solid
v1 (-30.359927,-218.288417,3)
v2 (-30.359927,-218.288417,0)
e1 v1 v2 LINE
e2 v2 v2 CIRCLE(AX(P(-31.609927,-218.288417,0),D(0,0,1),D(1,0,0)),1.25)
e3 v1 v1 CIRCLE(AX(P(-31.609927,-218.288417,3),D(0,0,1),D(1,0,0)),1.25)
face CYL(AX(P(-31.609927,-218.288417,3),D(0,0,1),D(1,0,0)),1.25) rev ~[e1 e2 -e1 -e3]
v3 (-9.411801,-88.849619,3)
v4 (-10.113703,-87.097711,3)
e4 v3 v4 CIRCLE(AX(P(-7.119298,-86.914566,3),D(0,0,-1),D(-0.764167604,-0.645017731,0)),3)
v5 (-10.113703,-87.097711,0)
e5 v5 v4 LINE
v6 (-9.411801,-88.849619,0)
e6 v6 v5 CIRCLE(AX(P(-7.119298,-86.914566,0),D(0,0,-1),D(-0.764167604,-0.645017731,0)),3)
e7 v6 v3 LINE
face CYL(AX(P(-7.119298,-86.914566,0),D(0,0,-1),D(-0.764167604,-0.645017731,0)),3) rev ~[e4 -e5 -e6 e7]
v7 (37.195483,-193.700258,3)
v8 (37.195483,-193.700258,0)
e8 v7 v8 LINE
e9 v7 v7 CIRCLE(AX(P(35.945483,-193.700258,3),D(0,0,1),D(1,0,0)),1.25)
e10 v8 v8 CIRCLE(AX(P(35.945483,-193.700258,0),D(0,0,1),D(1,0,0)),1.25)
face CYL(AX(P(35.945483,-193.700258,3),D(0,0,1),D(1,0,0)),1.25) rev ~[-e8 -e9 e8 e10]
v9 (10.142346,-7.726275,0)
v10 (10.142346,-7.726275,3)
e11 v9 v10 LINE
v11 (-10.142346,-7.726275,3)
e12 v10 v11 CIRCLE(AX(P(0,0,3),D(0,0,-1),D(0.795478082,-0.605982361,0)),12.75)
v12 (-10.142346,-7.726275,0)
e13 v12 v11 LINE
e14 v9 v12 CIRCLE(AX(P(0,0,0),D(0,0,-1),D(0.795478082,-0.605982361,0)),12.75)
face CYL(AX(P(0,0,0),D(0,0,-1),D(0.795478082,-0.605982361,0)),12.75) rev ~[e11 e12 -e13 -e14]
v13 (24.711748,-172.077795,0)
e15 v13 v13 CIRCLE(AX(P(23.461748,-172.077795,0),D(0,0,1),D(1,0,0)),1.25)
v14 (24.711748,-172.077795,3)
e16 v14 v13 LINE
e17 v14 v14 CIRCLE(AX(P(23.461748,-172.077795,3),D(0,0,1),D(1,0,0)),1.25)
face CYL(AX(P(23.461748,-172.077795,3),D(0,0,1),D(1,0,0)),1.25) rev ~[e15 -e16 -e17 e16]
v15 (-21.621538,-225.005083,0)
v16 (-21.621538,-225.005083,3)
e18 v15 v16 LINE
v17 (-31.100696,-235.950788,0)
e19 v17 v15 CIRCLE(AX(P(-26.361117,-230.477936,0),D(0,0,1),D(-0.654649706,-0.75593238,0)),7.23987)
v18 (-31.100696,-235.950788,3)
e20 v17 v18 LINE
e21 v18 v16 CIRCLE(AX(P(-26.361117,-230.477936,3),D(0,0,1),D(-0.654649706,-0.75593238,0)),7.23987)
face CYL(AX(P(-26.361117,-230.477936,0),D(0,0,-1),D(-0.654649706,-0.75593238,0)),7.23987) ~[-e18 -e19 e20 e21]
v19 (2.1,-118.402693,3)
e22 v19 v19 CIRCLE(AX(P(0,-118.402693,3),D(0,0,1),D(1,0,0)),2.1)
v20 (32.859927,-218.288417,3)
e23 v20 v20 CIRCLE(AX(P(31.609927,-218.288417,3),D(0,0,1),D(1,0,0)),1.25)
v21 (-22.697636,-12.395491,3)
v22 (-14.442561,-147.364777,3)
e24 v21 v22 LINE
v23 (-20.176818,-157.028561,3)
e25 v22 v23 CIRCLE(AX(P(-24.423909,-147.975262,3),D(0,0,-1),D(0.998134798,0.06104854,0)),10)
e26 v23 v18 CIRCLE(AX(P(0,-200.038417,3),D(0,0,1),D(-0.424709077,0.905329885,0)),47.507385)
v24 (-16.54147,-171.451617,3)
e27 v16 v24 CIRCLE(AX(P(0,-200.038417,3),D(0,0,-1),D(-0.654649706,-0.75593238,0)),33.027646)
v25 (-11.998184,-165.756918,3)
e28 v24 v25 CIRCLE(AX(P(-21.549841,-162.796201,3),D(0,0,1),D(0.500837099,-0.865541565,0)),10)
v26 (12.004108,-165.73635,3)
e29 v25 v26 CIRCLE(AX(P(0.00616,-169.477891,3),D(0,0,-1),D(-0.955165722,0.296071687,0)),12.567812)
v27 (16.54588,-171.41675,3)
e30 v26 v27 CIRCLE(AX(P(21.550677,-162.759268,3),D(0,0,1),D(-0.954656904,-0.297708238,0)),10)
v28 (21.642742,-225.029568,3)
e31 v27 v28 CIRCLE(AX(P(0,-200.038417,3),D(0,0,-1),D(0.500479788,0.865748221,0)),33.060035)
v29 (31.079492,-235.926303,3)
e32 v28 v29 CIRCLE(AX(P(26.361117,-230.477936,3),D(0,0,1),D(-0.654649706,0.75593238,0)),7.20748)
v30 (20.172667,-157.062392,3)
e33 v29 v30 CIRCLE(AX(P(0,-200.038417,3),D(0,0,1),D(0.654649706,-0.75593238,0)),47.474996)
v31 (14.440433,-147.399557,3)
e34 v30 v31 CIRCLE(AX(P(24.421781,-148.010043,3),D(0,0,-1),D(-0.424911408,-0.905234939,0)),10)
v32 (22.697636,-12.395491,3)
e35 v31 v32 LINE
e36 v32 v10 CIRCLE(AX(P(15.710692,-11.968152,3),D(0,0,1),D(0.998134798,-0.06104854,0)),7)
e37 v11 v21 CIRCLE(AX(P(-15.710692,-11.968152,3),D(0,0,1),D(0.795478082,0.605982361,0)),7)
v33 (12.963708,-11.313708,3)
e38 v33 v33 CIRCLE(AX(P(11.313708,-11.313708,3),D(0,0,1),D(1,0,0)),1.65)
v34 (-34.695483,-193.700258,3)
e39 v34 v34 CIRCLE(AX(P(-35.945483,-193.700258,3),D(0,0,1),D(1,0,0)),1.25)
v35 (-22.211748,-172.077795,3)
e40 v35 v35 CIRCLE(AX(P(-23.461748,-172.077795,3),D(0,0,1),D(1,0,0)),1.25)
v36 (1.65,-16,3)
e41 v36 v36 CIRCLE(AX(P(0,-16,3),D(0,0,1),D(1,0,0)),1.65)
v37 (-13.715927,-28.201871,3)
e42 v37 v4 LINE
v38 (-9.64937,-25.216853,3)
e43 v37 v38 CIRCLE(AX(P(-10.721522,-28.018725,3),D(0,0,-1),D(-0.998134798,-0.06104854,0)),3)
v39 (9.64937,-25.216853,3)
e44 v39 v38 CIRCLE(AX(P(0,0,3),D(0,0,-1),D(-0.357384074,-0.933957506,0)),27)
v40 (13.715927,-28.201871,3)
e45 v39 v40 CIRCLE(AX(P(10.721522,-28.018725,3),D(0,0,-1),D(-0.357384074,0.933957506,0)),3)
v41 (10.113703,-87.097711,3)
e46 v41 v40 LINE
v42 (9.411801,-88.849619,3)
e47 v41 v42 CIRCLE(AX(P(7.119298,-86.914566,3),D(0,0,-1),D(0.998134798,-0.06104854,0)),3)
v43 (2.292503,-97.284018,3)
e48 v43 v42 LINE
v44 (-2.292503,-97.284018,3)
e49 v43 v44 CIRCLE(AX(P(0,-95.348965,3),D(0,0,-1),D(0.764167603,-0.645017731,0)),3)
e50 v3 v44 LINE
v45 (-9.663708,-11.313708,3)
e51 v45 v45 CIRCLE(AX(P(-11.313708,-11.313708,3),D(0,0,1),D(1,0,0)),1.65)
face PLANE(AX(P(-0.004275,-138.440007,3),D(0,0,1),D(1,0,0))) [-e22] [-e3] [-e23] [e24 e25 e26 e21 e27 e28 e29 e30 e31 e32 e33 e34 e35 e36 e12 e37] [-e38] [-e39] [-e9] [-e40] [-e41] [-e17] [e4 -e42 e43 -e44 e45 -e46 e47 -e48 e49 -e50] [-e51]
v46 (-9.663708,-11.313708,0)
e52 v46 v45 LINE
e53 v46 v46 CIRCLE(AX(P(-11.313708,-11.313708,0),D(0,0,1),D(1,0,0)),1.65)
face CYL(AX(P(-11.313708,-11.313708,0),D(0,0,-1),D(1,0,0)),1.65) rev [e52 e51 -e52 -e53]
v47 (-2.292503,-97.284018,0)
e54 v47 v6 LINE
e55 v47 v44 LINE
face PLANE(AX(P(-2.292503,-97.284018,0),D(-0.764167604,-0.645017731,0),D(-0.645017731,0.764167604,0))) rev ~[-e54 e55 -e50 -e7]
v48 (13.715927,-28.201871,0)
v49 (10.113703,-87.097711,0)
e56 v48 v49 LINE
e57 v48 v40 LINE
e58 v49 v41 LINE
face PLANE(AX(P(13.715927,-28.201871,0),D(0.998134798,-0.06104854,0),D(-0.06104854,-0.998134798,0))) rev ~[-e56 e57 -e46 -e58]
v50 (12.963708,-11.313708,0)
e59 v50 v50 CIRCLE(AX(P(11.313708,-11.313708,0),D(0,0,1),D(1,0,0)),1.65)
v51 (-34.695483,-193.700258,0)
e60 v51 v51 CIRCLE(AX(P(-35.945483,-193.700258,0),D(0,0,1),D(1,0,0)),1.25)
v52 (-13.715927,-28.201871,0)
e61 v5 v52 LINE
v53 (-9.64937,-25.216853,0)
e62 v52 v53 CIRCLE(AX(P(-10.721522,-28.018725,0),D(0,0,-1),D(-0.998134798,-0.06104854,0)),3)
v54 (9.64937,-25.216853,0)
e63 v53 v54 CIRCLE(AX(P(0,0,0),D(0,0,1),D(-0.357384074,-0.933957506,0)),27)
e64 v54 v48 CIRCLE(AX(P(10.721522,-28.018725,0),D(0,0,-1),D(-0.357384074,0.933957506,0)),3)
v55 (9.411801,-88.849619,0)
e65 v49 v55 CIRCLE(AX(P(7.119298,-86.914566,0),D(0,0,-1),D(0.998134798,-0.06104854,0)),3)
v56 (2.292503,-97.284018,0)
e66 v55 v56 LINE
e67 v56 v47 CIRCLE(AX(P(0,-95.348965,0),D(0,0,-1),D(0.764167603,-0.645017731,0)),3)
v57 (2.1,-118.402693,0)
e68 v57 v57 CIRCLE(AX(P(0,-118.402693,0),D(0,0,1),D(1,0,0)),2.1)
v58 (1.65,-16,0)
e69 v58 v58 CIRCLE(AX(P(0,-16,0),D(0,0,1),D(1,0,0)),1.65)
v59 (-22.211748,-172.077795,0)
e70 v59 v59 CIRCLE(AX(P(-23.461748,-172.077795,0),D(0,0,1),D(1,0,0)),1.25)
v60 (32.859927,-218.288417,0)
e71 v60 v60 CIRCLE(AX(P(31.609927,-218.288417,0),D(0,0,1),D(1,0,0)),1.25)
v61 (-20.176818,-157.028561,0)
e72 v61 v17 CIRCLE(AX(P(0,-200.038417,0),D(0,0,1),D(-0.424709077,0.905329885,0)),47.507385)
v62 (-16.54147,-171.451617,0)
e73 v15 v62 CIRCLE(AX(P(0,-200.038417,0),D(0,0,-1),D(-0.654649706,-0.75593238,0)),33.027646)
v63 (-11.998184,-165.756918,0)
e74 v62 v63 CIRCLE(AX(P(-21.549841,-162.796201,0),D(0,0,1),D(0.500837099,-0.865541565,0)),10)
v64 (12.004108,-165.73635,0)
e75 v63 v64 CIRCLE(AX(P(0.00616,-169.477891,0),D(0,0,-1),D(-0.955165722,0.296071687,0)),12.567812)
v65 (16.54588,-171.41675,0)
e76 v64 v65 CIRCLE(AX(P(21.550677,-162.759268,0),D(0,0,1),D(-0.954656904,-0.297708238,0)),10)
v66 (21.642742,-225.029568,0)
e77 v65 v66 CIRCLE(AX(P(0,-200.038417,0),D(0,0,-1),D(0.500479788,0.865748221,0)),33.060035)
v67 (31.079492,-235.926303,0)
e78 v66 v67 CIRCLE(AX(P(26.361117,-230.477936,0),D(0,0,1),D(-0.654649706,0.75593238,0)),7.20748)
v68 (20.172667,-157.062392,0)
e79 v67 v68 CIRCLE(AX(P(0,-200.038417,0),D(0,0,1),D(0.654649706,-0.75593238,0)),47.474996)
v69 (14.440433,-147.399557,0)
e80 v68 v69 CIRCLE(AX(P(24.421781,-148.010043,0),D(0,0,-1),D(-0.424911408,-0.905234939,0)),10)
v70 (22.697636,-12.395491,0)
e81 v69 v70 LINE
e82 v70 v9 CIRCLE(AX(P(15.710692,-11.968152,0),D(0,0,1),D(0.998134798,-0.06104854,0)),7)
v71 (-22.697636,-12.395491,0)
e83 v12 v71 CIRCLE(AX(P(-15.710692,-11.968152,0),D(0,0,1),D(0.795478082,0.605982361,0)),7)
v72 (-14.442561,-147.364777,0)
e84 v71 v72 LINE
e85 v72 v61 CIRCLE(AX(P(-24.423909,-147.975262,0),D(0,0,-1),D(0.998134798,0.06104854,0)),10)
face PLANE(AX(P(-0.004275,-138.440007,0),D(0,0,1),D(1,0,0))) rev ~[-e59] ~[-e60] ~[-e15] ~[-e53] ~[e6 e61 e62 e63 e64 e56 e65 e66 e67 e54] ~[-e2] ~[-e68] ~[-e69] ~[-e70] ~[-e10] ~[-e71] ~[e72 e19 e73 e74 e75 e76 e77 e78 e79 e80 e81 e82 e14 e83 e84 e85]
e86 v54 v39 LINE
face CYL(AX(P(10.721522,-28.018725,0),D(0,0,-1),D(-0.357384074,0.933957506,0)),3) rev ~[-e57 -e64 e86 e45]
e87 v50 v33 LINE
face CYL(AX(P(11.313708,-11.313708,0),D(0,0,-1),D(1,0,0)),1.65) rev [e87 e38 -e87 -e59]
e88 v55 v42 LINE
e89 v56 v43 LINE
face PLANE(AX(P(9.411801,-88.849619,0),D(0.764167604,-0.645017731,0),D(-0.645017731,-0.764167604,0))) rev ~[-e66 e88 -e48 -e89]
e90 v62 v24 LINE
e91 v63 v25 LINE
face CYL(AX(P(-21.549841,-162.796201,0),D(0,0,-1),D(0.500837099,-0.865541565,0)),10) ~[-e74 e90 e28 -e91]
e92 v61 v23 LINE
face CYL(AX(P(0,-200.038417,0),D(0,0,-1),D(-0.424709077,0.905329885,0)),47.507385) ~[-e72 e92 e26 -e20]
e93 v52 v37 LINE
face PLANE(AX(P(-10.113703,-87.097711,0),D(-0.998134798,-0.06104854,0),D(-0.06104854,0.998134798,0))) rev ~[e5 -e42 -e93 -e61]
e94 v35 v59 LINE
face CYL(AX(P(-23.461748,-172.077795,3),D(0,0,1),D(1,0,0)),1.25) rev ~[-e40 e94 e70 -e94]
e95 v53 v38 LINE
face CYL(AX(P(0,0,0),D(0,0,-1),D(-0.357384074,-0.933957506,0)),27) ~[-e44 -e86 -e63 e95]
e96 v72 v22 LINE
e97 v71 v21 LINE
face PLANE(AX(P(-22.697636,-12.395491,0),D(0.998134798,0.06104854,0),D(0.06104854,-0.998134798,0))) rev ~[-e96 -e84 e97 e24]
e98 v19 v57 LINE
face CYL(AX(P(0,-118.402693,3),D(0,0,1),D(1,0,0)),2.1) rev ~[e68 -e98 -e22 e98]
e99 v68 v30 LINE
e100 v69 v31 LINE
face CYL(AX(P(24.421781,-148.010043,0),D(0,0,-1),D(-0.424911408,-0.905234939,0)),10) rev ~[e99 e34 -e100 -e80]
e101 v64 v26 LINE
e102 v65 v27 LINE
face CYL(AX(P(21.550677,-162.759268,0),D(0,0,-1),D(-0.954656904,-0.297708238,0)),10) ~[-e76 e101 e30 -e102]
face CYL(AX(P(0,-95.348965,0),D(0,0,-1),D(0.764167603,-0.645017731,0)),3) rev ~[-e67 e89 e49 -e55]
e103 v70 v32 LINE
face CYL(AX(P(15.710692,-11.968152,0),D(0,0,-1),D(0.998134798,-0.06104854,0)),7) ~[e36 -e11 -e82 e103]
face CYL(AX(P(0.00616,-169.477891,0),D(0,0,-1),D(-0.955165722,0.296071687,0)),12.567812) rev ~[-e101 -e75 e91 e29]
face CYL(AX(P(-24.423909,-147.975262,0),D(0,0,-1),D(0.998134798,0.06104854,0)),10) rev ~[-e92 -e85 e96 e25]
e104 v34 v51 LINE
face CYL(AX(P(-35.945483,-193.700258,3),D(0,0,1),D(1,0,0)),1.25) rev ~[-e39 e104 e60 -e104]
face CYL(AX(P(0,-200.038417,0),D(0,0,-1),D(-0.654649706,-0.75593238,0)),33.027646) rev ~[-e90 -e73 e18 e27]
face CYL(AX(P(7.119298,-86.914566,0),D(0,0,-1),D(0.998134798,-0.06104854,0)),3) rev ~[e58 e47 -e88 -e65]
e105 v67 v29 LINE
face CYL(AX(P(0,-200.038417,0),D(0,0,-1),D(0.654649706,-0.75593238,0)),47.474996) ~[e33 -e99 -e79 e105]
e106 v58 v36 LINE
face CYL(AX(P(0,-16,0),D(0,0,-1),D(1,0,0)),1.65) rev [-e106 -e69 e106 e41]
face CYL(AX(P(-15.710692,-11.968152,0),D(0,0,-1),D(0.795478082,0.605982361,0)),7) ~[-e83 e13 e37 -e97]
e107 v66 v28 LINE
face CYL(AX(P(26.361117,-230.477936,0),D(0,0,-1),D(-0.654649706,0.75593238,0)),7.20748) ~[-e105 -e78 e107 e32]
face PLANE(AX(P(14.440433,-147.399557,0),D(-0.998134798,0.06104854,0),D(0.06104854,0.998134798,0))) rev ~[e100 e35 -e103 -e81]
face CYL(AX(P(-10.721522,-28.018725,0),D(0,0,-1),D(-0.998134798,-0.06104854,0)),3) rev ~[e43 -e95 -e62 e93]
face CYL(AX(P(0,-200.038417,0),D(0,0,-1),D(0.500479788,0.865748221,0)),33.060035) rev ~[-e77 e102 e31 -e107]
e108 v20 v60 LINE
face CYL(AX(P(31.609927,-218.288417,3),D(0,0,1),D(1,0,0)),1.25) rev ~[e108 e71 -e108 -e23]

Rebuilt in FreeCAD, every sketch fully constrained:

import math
import FreeCAD as App
import Part
import Sketcher

V = App.Vector
Q = App.Units.Quantity

doc = App.newDocument("Part")
params = doc.addObject("Spreadsheet::Sheet", "Params")
for row, (alias, value) in enumerate([
    ("sketch1_radius", "10 mm"),
    ("sketch1_radius2", "7 mm"),
    ("sketch1_diameter", "3.3 mm"),
    ("sketch1_radius3", "12.75 mm"),
    ("pad1_length", "3 mm"),
    ("sketch2_radius", "3 mm"),
    ("sketch2_radius2", "27 mm"),
    ("pocket1_length", "15 mm"),
    ("sketch3_diameter", "4.2 mm"),
    ("pocket2_length", "10 mm"),
    ("sketch4_diameter", "2.5 mm"),
    ("pocket3_length", "10 mm"),
], start=1):
    params.set(f"A{row}", alias)
    params.set(f"B{row}", "=" + value)
    params.setAlias(f"B{row}", alias)

body = doc.addObject("PartDesign::Body", "Body")

sketch1 = body.newObject("Sketcher::SketchObject", "Sketch")
sketch1.AttachmentSupport = (doc.getObject("XY_Plane"), [""])
sketch1.MapMode = "FlatFace"
sketch1.addGeometry([
    Part.LineSegment(V(-22.7, -12.4, 0), V(-14.4, -147.4, 0)),
    Part.ArcOfCircle(Part.Circle(V(-24.4, -148, 0), V(0, 0, 1), 10), math.radians(-65), math.radians(4)),
    Part.ArcOfCircle(Part.Circle(V(0, -200, 0), V(0, 0, 1), 47.5), math.radians(115), math.radians(229)),
    Part.ArcOfCircle(Part.Circle(V(-26.4, -230.5, 0), V(0, 0, 1), 7.2), math.radians(-131), math.radians(49)),
    Part.ArcOfCircle(Part.Circle(V(0, -200, 0), V(0, 0, 1), 33), math.radians(120), math.radians(229)),
    Part.ArcOfCircle(Part.Circle(V(-21.5, -162.8, 0), V(0, 0, 1), 10), math.radians(-60), math.radians(-17)),
    Part.ArcOfCircle(Part.Circle(V(0, -169.5, 0), V(0, 0, 1), 12.6), math.radians(17), math.radians(163)),
    Part.ArcOfCircle(Part.Circle(V(21.6, -162.8, 0), V(0, 0, 1), 10), math.radians(-163), math.radians(-120)),
    Part.ArcOfCircle(Part.Circle(V(0, -200, 0), V(0, 0, 1), 33.1), math.radians(-49), math.radians(60)),
    Part.ArcOfCircle(Part.Circle(V(26.4, -230.5, 0), V(0, 0, 1), 7.2), math.radians(131), math.radians(311)),
    Part.ArcOfCircle(Part.Circle(V(0, -200, 0), V(0, 0, 1), 47.5), math.radians(-49), math.radians(65)),
    Part.ArcOfCircle(Part.Circle(V(24.4, -148, 0), V(0, 0, 1), 10), math.radians(177), math.radians(245)),
    Part.LineSegment(V(14.4, -147.4, 0), V(22.7, -12.4, 0)),
    Part.ArcOfCircle(Part.Circle(V(15.7, -12, 0), V(0, 0, 1), 7), math.radians(-4), math.radians(143)),
    Part.ArcOfCircle(Part.Circle(V(0, 0, 0), V(0, 0, 1), 12.8), math.radians(-143), math.radians(-37)),
    Part.ArcOfCircle(Part.Circle(V(-15.7, -12, 0), V(0, 0, 1), 7), math.radians(37), math.radians(184)),
    Part.Circle(V(0, -16, 0), V(0, 0, 1), 1.6),
    Part.Circle(V(-11.3, -11.3, 0), V(0, 0, 1), 1.6),
    Part.Circle(V(11.3, -11.3, 0), V(0, 0, 1), 1.6),
], False)
sketch1.addConstraint([
    Sketcher.Constraint("Tangent", 0, 2, 1, 2),
    Sketcher.Constraint("Tangent", 1, 1, 2, 1),
    Sketcher.Constraint("Tangent", 2, 2, 3, 1),
    Sketcher.Constraint("Tangent", 3, 2, 4, 2),
    Sketcher.Constraint("Tangent", 4, 1, 5, 1),
    Sketcher.Constraint("Tangent", 5, 2, 6, 2),
    Sketcher.Constraint("Tangent", 6, 1, 7, 1),
    Sketcher.Constraint("Tangent", 7, 2, 8, 2),
    Sketcher.Constraint("Tangent", 8, 1, 9, 1),
    Sketcher.Constraint("Tangent", 9, 2, 10, 1),
    Sketcher.Constraint("Tangent", 10, 2, 11, 2),
    Sketcher.Constraint("Tangent", 11, 1, 12, 1),
    Sketcher.Constraint("Tangent", 12, 2, 13, 1),
    Sketcher.Constraint("Tangent", 13, 2, 14, 2),
    Sketcher.Constraint("Tangent", 14, 1, 15, 1),
    Sketcher.Constraint("Tangent", 15, 2, 0, 1),
    Sketcher.Constraint("Coincident", 14, 3, -1, 1),
    Sketcher.Constraint("Coincident", 4, 3, 2, 3),
    Sketcher.Constraint("Coincident", 8, 3, 2, 3),
    Sketcher.Constraint("Coincident", 10, 3, 2, 3),
    Sketcher.Constraint("Equal", 1, 5),
    Sketcher.Constraint("Equal", 5, 7),
    Sketcher.Constraint("Equal", 7, 11),
    Sketcher.Constraint("Equal", 13, 15),
    Sketcher.Constraint("Equal", 16, 17),
    Sketcher.Constraint("Equal", 17, 18),
    Sketcher.Constraint("Symmetric", 3, 3, 9, 3, -2),
    Sketcher.Constraint("Symmetric", 17, 3, 18, 3, -2),
    Sketcher.Constraint("Symmetric", 12, 2, 15, 2, -2),
    Sketcher.Constraint("PointOnObject", 2, 3, -2),
    Sketcher.Constraint("PointOnObject", 16, 3, -2),
    Sketcher.Constraint("Radius", 1, 10.0),
    Sketcher.Constraint("Radius", 13, 7.0),
    Sketcher.Constraint("Diameter", 16, 3.3),
    Sketcher.Constraint("Radius", 14, 12.75),
    Sketcher.Constraint("DistanceY", 16, 3, -1, 1, 16.0),
    Sketcher.Constraint("Angle", 0, Q("-86.5 deg")),
    Sketcher.Constraint("Radius", 3, 7.23987),
    Sketcher.Constraint("Radius", 9, 7.20748),
    Sketcher.Constraint("Radius", 2, 47.507385),
    Sketcher.Constraint("Radius", 6, 12.567812),
    Sketcher.Constraint("DistanceX", 5, 3, 6, 3, 21.556001),
    Sketcher.Constraint("Distance", 0, 135.221501),
    Sketcher.Constraint("DistanceY", 5, 3, -1, 1, 162.796201),
    Sketcher.Constraint("DistanceX", 1, 3, 13, 3, 40.134601),
    Sketcher.Constraint("DistanceX", 17, 3, 13, 3, 27.024401),
    Sketcher.Constraint("DistanceY", 17, 3, -1, 1, 11.313708),
    Sketcher.Constraint("DistanceX", 3, 2, -1, 1, 21.621538),
])
sketch1.setExpression("Constraints[31]", "Params.sketch1_radius")
sketch1.setExpression("Constraints[32]", "Params.sketch1_radius2")
sketch1.setExpression("Constraints[33]", "Params.sketch1_diameter")
sketch1.setExpression("Constraints[34]", "Params.sketch1_radius3")
pad1 = body.newObject("PartDesign::Pad", "Pad")
pad1.Profile = sketch1
pad1.setExpression("Length", "Params.pad1_length")

sketch2 = body.newObject("Sketcher::SketchObject", "Sketch001")
sketch2.AttachmentSupport = (doc.getObject("XY_Plane"), [""])
sketch2.MapMode = "FlatFace"
sketch2.addGeometry([
    Part.LineSegment(V(13.7, -28.2, 0), V(10.1, -87.1, 0)),
    Part.ArcOfCircle(Part.Circle(V(7.1, -86.9, 0), V(0, 0, 1), 3), math.radians(-40), math.radians(-4)),
    Part.LineSegment(V(9.4, -88.8, 0), V(2.3, -97.3, 0)),
    Part.ArcOfCircle(Part.Circle(V(0, -95.3, 0), V(0, 0, 1), 3), math.radians(-140), math.radians(-40)),
    Part.LineSegment(V(-2.3, -97.3, 0), V(-9.4, -88.8, 0)),
    Part.ArcOfCircle(Part.Circle(V(-7.1, -86.9, 0), V(0, 0, 1), 3), math.radians(-176), math.radians(-140)),
    Part.LineSegment(V(-10.1, -87.1, 0), V(-13.7, -28.2, 0)),
    Part.ArcOfCircle(Part.Circle(V(-10.7, -28, 0), V(0, 0, 1), 3), math.radians(69), math.radians(184)),
    Part.ArcOfCircle(Part.Circle(V(0, 0, 0), V(0, 0, 1), 27), math.radians(-111), math.radians(-69)),
    Part.ArcOfCircle(Part.Circle(V(10.7, -28, 0), V(0, 0, 1), 3), math.radians(-4), math.radians(111)),
], False)
sketch2.addConstraint([
    Sketcher.Constraint("Tangent", 0, 2, 1, 2),
    Sketcher.Constraint("Tangent", 1, 1, 2, 1),
    Sketcher.Constraint("Tangent", 2, 2, 3, 2),
    Sketcher.Constraint("Tangent", 3, 1, 4, 1),
    Sketcher.Constraint("Tangent", 4, 2, 5, 2),
    Sketcher.Constraint("Tangent", 5, 1, 6, 1),
    Sketcher.Constraint("Tangent", 6, 2, 7, 2),
    Sketcher.Constraint("Tangent", 7, 1, 8, 1),
    Sketcher.Constraint("Tangent", 8, 2, 9, 2),
    Sketcher.Constraint("Tangent", 9, 1, 0, 1),
    Sketcher.Constraint("Coincident", 8, 3, -1, 1),
    Sketcher.Constraint("Equal", 1, 3),
    Sketcher.Constraint("Equal", 3, 5),
    Sketcher.Constraint("Equal", 5, 7),
    Sketcher.Constraint("Equal", 7, 9),
    Sketcher.Constraint("Symmetric", 1, 3, 5, 3, -2),
    Sketcher.Constraint("PointOnObject", 3, 3, -2),
    Sketcher.Constraint("Horizontal", 7, 3, 9, 3),
    Sketcher.Constraint("Radius", 1, 3.0),
    Sketcher.Constraint("Radius", 8, 27.0),
    Sketcher.Constraint("Angle", 0, Q("-93.5 deg")),
    Sketcher.Constraint("DistanceX", 5, 3, 0, 2, 17.233001),
    Sketcher.Constraint("Distance", 0, 59.005898),
    Sketcher.Constraint("DistanceX", -1, 1, 1, 1, 9.411801),
])
sketch2.setExpression("Constraints[18]", "Params.sketch2_radius")
sketch2.setExpression("Constraints[19]", "Params.sketch2_radius2")
pocket1 = body.newObject("PartDesign::Pocket", "Pocket")
pocket1.Profile = sketch2
pocket1.setExpression("Length", "Params.pocket1_length")
pocket1.Reversed = True

sketch3 = body.newObject("Sketcher::SketchObject", "Sketch002")
sketch3.AttachmentSupport = (doc.getObject("XY_Plane"), [""])
sketch3.MapMode = "FlatFace"
sketch3.AttachmentOffset = App.Placement(V(0, 0, 3), App.Rotation())
sketch3.addGeometry([
    Part.Circle(V(0, -188.4, 0), V(0, 0, 1), 2.1),
    Part.Circle(V(0, -118.4, 0), V(0, 0, 1), 2.1),
], False)
sketch3.addConstraint([
    Sketcher.Constraint("Equal", 0, 1),
    Sketcher.Constraint("PointOnObject", 0, 3, -2),
    Sketcher.Constraint("PointOnObject", 1, 3, -2),
    Sketcher.Constraint("Diameter", 0, 4.2),
    Sketcher.Constraint("DistanceY", 0, 3, 1, 3, 70.0),
    Sketcher.Constraint("DistanceY", 0, 3, -1, 1, 188.402693),
])
sketch3.setExpression("Constraints[3]", "Params.sketch3_diameter")
pocket2 = body.newObject("PartDesign::Pocket", "Pocket001")
pocket2.Profile = sketch3
pocket2.setExpression("Length", "Params.pocket2_length")

sketch4 = body.newObject("Sketcher::SketchObject", "Sketch003")
sketch4.AttachmentSupport = (doc.getObject("XY_Plane"), [""])
sketch4.MapMode = "FlatFace"
sketch4.AttachmentOffset = App.Placement(V(0, 0, 3), App.Rotation())
sketch4.addGeometry([
    Part.Circle(V(0, -163.5, 0), V(0, 0, 1), 1.2),
    Part.Circle(V(23.5, -172.1, 0), V(0, 0, 1), 1.2),
    Part.Circle(V(35.9, -193.7, 0), V(0, 0, 1), 1.2),
    Part.Circle(V(31.6, -218.3, 0), V(0, 0, 1), 1.2),
    Part.Circle(V(12.5, -234.3, 0), V(0, 0, 1), 1.2),
    Part.Circle(V(-12.5, -234.3, 0), V(0, 0, 1), 1.2),
    Part.Circle(V(-31.6, -218.3, 0), V(0, 0, 1), 1.2),
    Part.Circle(V(-35.9, -193.7, 0), V(0, 0, 1), 1.2),
    Part.Circle(V(-23.5, -172.1, 0), V(0, 0, 1), 1.2),
], False)
sketch4.addConstraint([
    Sketcher.Constraint("Equal", 0, 1),
    Sketcher.Constraint("Equal", 1, 2),
    Sketcher.Constraint("Equal", 2, 3),
    Sketcher.Constraint("Equal", 3, 4),
    Sketcher.Constraint("Equal", 4, 5),
    Sketcher.Constraint("Equal", 5, 6),
    Sketcher.Constraint("Equal", 6, 7),
    Sketcher.Constraint("Equal", 7, 8),
    Sketcher.Constraint("Symmetric", 4, 3, 5, 3, -2),
    Sketcher.Constraint("Symmetric", 3, 3, 6, 3, -2),
    Sketcher.Constraint("Symmetric", 2, 3, 7, 3, -2),
    Sketcher.Constraint("Symmetric", 1, 3, 8, 3, -2),
    Sketcher.Constraint("PointOnObject", 0, 3, -2),
    Sketcher.Constraint("Diameter", 0, 2.5),
    Sketcher.Constraint("DistanceY", 3, 3, 0, 3, 54.75),
    Sketcher.Constraint("DistanceY", 2, 3, -1, 1, 193.700258),
    Sketcher.Constraint("DistanceY", 2, 3, 0, 3, 30.161842),
    Sketcher.Constraint("DistanceX", 1, 3, 3, 3, 8.148179),
    Sketcher.Constraint("DistanceY", 4, 3, 3, 3, 16.048781),
    Sketcher.Constraint("DistanceX", 5, 3, 4, 3, 24.96747),
    Sketcher.Constraint("DistanceX", 5, 3, 2, 3, 48.429218),
    Sketcher.Constraint("DistanceX", 6, 3, 2, 3, 67.55541),
    Sketcher.Constraint("DistanceY", 1, 3, -1, 1, 172.077795),
])
sketch4.setExpression("Constraints[13]", "Params.sketch4_diameter")
pocket3 = body.newObject("PartDesign::Pocket", "Pocket002")
pocket3.Profile = sketch4
pocket3.setExpression("Length", "Params.pocket3_length")

doc.recompute()
